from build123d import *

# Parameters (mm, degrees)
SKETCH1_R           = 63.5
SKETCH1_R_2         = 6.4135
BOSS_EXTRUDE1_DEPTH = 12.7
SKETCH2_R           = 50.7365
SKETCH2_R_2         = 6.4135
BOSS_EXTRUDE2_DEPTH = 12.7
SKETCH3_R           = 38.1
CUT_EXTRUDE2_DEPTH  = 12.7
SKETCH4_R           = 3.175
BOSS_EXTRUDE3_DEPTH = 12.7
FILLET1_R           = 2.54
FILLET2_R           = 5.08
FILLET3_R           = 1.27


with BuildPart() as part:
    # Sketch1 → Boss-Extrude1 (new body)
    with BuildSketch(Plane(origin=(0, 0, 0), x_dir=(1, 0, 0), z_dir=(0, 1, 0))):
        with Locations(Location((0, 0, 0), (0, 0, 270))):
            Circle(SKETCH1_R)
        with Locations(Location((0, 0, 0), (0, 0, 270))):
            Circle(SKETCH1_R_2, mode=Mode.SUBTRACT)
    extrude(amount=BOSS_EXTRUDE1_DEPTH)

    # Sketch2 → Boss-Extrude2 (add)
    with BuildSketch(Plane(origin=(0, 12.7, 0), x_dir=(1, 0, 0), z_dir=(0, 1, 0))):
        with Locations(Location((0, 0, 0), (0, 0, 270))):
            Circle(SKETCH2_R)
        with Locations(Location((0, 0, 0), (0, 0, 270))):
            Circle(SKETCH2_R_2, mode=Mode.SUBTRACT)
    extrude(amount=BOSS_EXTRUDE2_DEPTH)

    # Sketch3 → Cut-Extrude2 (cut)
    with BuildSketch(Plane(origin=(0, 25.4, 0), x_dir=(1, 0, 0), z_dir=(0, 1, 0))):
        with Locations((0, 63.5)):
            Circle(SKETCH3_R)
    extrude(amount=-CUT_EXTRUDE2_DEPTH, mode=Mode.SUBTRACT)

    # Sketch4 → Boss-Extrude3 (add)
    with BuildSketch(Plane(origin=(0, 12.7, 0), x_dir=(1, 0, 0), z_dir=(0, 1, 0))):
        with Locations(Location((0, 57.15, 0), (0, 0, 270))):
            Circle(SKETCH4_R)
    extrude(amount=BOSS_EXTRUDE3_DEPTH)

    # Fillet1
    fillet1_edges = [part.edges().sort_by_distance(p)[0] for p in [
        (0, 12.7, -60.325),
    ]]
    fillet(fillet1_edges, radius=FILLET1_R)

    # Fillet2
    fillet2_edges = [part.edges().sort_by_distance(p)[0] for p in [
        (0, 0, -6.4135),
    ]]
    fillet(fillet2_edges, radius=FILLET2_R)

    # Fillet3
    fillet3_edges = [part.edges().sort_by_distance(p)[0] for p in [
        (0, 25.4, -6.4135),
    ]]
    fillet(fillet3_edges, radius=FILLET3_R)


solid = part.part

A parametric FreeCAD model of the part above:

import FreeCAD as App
import Part
import Sketcher
Q = App.Units.Quantity


def edges_at(feature, points):
    """Names of the edges that pass closest to the given points."""
    edges = feature.Shape.Edges
    near = lambda p: min(range(len(edges)), key=lambda i: edges[i].distToShape(Part.Vertex(*p))[0])
    return sorted({f"Edge{near(p) + 1}" for p in points})

doc = App.newDocument("Part")
body = doc.addObject("PartDesign::Body", "Body")

sketch1 = body.newObject("Sketcher::SketchObject", "Sketch")
sketch1.AttachmentSupport = (doc.getObject("XZ_Plane"), [""])
sketch1.MapMode = "FlatFace"
sketch1.addGeometry(Part.Circle(App.Vector(0, 0, 0), App.Vector(0, 0, 1), 64), False)
sketch1.addGeometry(Part.Circle(App.Vector(0, 0, 0), App.Vector(0, 0, 1), 6), False)
sketch1.addConstraint(Sketcher.Constraint("Coincident", 0, 3, -1, 1))
sketch1.addConstraint(Sketcher.Constraint("Coincident", 1, 3, -1, 1))
sketch1.addConstraint(Sketcher.Constraint("Diameter", 0, Q("5 in")))
sketch1.addConstraint(Sketcher.Constraint("Diameter", 1, Q("0.505 in")))
pad1 = body.newObject("PartDesign::Pad", "Pad")
pad1.Profile = sketch1
pad1.Length = Q("0.5 in")
pad1.Reversed = True

sketch2 = body.newObject("Sketcher::SketchObject", "Sketch001")
sketch2.AttachmentSupport = (doc.getObject("XZ_Plane"), [""])
sketch2.MapMode = "FlatFace"
sketch2.AttachmentOffset = App.Placement(App.Vector(0, 0, -0.5 * 25.4), App.Rotation())
sketch2.addGeometry(Part.Circle(App.Vector(0, 0, 0), App.Vector(0, 0, 1), 51), False)
sketch2.addGeometry(Part.Circle(App.Vector(0, 0, 0), App.Vector(0, 0, 1), 6), False)
sketch2.addConstraint(Sketcher.Constraint("Coincident", 0, 3, -1, 1))
sketch2.addConstraint(Sketcher.Constraint("Coincident", 1, 3, -1, 1))
sketch2.addConstraint(Sketcher.Constraint("Diameter", 0, Q("3.995 in")))
sketch2.addConstraint(Sketcher.Constraint("Diameter", 1, Q("0.505 in")))
pad2 = body.newObject("PartDesign::Pad", "Pad001")
pad2.Profile = sketch2
pad2.Length = Q("0.5 in")
pad2.Reversed = True

sketch3 = body.newObject("Sketcher::SketchObject", "Sketch002")
sketch3.AttachmentSupport = (doc.getObject("XZ_Plane"), [""])
sketch3.MapMode = "FlatFace"
sketch3.AttachmentOffset = App.Placement(App.Vector(0, 0, -1 * 25.4), App.Rotation())
sketch3.addGeometry(Part.Circle(App.Vector(0, -64, 0), App.Vector(0, 0, 1), 38), False)
sketch3.addConstraint(Sketcher.Constraint("PointOnObject", 0, 3, -2))
sketch3.addConstraint(Sketcher.Constraint("Diameter", 0, Q("3 in")))
sketch3.addConstraint(Sketcher.Constraint("DistanceY", 0, 3, -1, 1, Q("2.5 in")))
pocket1 = body.newObject("PartDesign::Pocket", "Pocket")
pocket1.Profile = sketch3
pocket1.Length = Q("0.5 in")
pocket1.Reversed = True

sketch4 = body.newObject("Sketcher::SketchObject", "Sketch003")
sketch4.AttachmentSupport = (doc.getObject("XZ_Plane"), [""])
sketch4.MapMode = "FlatFace"
sketch4.AttachmentOffset = App.Placement(App.Vector(0, 0, -0.5 * 25.4), App.Rotation())
sketch4.addGeometry(Part.Circle(App.Vector(0, -57.1, 0), App.Vector(0, 0, 1), 3.2), False)
sketch4.addConstraint(Sketcher.Constraint("PointOnObject", 0, 3, -2))
sketch4.addConstraint(Sketcher.Constraint("Diameter", 0, Q("0.25 in")))
sketch4.addConstraint(Sketcher.Constraint("DistanceY", 0, 3, -1, 1, Q("2.25 in")))
pad3 = body.newObject("PartDesign::Pad", "Pad002")
pad3.Profile = sketch4
pad3.Length = Q("0.5 in")
pad3.Reversed = True
doc.recompute()

fillet = body.newObject("PartDesign::Fillet", "Fillet")
fillet.Base = (pad3, edges_at(pad3, [(0, 12.7, -60.325)]))
fillet.Radius = Q("0.1 in")
doc.recompute()

fillet2 = body.newObject("PartDesign::Fillet", "Fillet001")
fillet2.Base = (fillet, edges_at(fillet, [(0, 0, -6.413)]))
fillet2.Radius = Q("0.2 in")
doc.recompute()

fillet3 = body.newObject("PartDesign::Fillet", "Fillet002")
fillet3.Base = (fillet2, edges_at(fillet2, [(0, 25.4, -6.413)]))
fillet3.Radius = Q("0.05 in")

doc.recompute()
